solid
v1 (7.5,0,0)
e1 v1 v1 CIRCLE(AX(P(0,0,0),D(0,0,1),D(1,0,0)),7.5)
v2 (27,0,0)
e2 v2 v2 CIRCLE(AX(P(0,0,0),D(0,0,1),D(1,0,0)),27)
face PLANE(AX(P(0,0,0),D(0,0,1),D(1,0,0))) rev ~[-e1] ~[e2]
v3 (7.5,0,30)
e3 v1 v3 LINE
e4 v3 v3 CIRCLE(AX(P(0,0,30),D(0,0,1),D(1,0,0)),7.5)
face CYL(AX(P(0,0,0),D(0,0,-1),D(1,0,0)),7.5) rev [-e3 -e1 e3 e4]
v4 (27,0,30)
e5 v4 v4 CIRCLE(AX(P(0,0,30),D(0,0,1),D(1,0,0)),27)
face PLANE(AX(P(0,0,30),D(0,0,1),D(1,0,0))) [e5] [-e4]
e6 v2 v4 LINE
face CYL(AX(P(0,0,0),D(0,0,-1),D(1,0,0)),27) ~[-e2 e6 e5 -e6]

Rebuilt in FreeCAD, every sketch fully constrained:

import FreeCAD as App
import Part
import Sketcher

V = App.Vector
Q = App.Units.Quantity

doc = App.newDocument("Part")
body = doc.addObject("PartDesign::Body", "Body")

# Sketch on XY plane
sketch1 = body.newObject("Sketcher::SketchObject", "Sketch")
sketch1.AttachmentSupport = (doc.getObject("XY_Plane"), [""])
sketch1.MapMode = "FlatFace"
sketch1.addGeometry([
    Part.Circle(V(0, 0, 0), V(0, 0, 1), 27),
    Part.Circle(V(0, 0, 0), V(0, 0, 1), 8),
], False)
sketch1.addConstraint([
    Sketcher.Constraint("Coincident", 0, 3, -1, 1),
    Sketcher.Constraint("Coincident", 1, 3, -1, 1),
    Sketcher.Constraint("Diameter", 0, Q("54 mm")),
    Sketcher.Constraint("Diameter", 1, Q("15 mm")),
])
pad1 = body.newObject("PartDesign::Pad", "Pad")
pad1.Profile = sketch1
pad1.Length = 30

doc.recompute()
